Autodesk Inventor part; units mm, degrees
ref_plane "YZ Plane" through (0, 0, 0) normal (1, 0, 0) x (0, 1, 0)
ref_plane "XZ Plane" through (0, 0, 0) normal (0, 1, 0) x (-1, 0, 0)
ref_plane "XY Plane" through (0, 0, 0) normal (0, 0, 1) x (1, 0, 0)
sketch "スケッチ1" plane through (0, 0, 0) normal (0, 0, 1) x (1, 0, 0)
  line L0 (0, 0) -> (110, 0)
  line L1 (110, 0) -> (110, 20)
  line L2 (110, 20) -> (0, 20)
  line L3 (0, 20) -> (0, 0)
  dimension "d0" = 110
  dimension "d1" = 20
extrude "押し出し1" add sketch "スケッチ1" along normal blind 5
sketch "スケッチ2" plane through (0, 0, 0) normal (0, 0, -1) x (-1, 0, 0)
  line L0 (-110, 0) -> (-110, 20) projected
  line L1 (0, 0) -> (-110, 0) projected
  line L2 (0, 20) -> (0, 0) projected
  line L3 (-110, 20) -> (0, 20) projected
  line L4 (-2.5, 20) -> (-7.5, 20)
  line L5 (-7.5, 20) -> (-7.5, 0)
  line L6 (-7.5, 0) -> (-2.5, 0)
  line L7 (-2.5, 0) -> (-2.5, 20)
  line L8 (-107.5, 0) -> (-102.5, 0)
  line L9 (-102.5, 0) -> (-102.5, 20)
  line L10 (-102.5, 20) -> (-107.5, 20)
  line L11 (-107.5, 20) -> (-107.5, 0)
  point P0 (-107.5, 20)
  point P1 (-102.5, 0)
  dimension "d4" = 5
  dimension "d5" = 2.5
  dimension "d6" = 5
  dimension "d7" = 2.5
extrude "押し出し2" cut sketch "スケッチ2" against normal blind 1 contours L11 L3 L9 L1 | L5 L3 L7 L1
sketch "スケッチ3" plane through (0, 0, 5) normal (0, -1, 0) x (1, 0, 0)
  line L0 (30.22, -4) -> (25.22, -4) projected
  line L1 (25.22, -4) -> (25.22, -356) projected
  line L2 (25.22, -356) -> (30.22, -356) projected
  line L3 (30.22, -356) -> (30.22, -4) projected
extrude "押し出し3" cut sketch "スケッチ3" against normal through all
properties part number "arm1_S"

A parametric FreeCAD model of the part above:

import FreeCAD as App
import Part
import Sketcher

V = App.Vector


def add_polygon(sketch, points):
    """Adds a closed chain of lines whose ends are joined by coincident constraints."""
    first, n = sketch.GeometryCount, len(points)
    for a, b in zip(points, points[1:] + points[:1]):
        sketch.addGeometry(Part.LineSegment(App.Vector(*a, 0), App.Vector(*b, 0)), False)
    for i in range(n):
        sketch.addConstraint(Sketcher.Constraint("Coincident", first + i, 2, first + (i + 1) % n, 1))

doc = App.newDocument("Part")
body = doc.addObject("PartDesign::Body", "Body")

sketch1 = body.newObject("Sketcher::SketchObject", "Sketch")
sketch1.AttachmentSupport = (doc.getObject("XY_Plane"), [""])
sketch1.MapMode = "FlatFace"
add_polygon(sketch1, [(0, 20), (0, 0), (110, 0), (110, 20)])
sketch1.addConstraint([
    Sketcher.Constraint("Vertical", 0),
    Sketcher.Constraint("Horizontal", 1),
    Sketcher.Constraint("Vertical", 2),
    Sketcher.Constraint("Horizontal", 3),
    Sketcher.Constraint("Coincident", 0, 2, -1, 1),
    Sketcher.Constraint("DistanceX", 1, 1, 1, 2, 110.0),
    Sketcher.Constraint("DistanceY", 0, 2, 0, 1, 20.0),
])
pad1 = body.newObject("PartDesign::Pad", "Pad")
pad1.Profile = sketch1
pad1.Length = 5

sketch2 = body.newObject("Sketcher::SketchObject", "Sketch001")
sketch2.AttachmentSupport = (doc.getObject("XY_Plane"), [""])
sketch2.MapMode = "FlatFace"
add_polygon(sketch2, [(108, 20), (108, 0), (102, 0), (102, 20)])
add_polygon(sketch2, [(8, 20), (8, 0), (2, 0), (2, 20)])
sketch2.addConstraint([
    Sketcher.Constraint("Vertical", 0),
    Sketcher.Constraint("Horizontal", 1),
    Sketcher.Constraint("Vertical", 2),
    Sketcher.Constraint("Horizontal", 3),
    Sketcher.Constraint("Vertical", 4),
    Sketcher.Constraint("Horizontal", 5),
    Sketcher.Constraint("Vertical", 6),
    Sketcher.Constraint("Horizontal", 7),
    Sketcher.Constraint("PointOnObject", 0, 2, -1),
    Sketcher.Constraint("PointOnObject", 4, 2, -1),
    Sketcher.Constraint("Horizontal", 3, 2, 6, 2),
    Sketcher.Constraint("Equal", 3, 5),
    Sketcher.Constraint("DistanceX", 1, 2, 1, 1, 5.0),
    Sketcher.Constraint("DistanceX", -1, 1, 5, 2, 2.5),
    Sketcher.Constraint("DistanceY", 0, 2, 0, 1, 20.0),
    Sketcher.Constraint("DistanceX", 4, 2, 1, 2, 95.0),
])
pocket1 = body.newObject("PartDesign::Pocket", "Pocket")
pocket1.Profile = sketch2
pocket1.Length = 1
pocket1.Reversed = True

sketch3 = body.newObject("Sketcher::SketchObject", "Sketch002")
sketch3.AttachmentSupport = (doc.getObject("XZ_Plane"), [""])
sketch3.MapMode = "FlatFace"
add_polygon(sketch3, [(30, -351), (30, 1), (25, 1), (25, -351)])
sketch3.addConstraint([
    Sketcher.Constraint("Vertical", 0),
    Sketcher.Constraint("Horizontal", 1),
    Sketcher.Constraint("Vertical", 2),
    Sketcher.Constraint("Horizontal", 3),
    Sketcher.Constraint("DistanceX", 1, 2, 1, 1, 5.0),
    Sketcher.Constraint("DistanceY", 0, 1, 0, 2, 352.0),
    Sketcher.Constraint("DistanceY", -1, 1, 0, 2, 1.0),
    Sketcher.Constraint("DistanceX", -1, 1, 0, 2, 30.22),
])
pocket2 = body.newObject("PartDesign::Pocket", "Pocket001")
pocket2.Profile = sketch3
pocket2.Type = "ThroughAll"

doc.recompute()
